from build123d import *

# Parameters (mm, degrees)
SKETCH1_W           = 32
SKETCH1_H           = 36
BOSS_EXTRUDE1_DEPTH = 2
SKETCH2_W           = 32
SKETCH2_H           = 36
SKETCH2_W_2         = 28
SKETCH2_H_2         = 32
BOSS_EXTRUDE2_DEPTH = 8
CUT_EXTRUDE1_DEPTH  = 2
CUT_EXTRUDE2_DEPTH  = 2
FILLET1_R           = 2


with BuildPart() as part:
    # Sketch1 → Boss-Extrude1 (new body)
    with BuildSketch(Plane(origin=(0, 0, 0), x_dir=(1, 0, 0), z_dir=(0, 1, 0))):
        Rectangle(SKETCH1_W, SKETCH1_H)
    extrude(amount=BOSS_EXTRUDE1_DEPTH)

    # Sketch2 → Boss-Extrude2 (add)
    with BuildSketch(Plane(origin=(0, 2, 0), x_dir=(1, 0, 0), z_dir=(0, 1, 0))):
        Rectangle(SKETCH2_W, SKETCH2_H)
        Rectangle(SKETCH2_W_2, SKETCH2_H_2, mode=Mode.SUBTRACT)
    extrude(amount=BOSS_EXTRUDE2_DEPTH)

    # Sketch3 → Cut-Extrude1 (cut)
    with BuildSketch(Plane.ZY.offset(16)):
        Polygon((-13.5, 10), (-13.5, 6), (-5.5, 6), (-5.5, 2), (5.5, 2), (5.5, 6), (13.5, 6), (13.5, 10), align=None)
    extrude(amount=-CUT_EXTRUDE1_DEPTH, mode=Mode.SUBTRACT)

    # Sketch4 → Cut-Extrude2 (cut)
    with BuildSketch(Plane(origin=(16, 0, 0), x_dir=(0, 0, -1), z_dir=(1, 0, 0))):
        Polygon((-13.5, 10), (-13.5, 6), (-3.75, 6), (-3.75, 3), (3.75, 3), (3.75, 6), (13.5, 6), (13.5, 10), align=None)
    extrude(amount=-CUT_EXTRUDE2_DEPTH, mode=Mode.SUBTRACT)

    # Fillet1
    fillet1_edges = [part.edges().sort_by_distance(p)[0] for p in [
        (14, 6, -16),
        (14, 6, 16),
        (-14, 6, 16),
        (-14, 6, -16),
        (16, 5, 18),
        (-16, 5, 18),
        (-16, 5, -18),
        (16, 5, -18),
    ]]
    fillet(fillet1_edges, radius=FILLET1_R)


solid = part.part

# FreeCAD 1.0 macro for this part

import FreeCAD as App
import Part
import Sketcher
from FreeCAD import Vector


def edges_at(feature, points):
    """Names of the edges that pass closest to the given points."""
    edges = feature.Shape.Edges
    near = lambda p: min(range(len(edges)), key=lambda i: edges[i].distToShape(Part.Vertex(*p))[0])
    return sorted({f"Edge{near(p) + 1}" for p in points})


def add_polygon(sketch, points):
    """Adds a closed chain of lines whose ends are joined by coincident constraints."""
    first, n = sketch.GeometryCount, len(points)
    for a, b in zip(points, points[1:] + points[:1]):
        sketch.addGeometry(Part.LineSegment(App.Vector(*a, 0), App.Vector(*b, 0)), False)
    for i in range(n):
        sketch.addConstraint(Sketcher.Constraint("Coincident", first + i, 2, first + (i + 1) % n, 1))

doc = App.newDocument("Part")
params = doc.addObject("Spreadsheet::Sheet", "Params")
for row, (alias, value) in enumerate([
    ("sketch1_width", "32 mm"),
    ("sketch1_height", "36 mm"),
    ("pad1_length", "2 mm"),
    ("sketch2_width", "32 mm"),
    ("sketch2_width2", "28 mm"),
    ("sketch2_height", "36 mm"),
    ("pad2_length", "8 mm"),
    ("sketch3_width", "4 mm"),
    ("sketch3_height", "8 mm"),
    ("sketch3_height2", "11 mm"),
    ("pocket1_length", "2 mm"),
    ("sketch4_width", "4 mm"),
    ("sketch4_width2", "3 mm"),
    ("sketch4_height", "27 mm"),
    ("sketch4_height2", "7.5 mm"),
    ("pocket2_length", "2 mm"),
    ("fillet_radius", "2 mm"),
], start=1):
    params.set(f"A{row}", alias)
    params.set(f"B{row}", "=" + value)
    params.setAlias(f"B{row}", alias)

body = doc.addObject("PartDesign::Body", "Body")

# Sketch on XZ plane
sketch1 = doc.addObject("Sketcher::SketchObject", "Sketch")
body.addObject(sketch1)
sketch1.AttachmentSupport = (doc.XZ_Plane, [""])
sketch1.MapMode = "FlatFace"
add_polygon(sketch1, [(-16, -18), (-16, 18), (16, 18), (16, -18)])  # lines 0-3
sketch1.addConstraint(Sketcher.Constraint("Vertical", 0))
sketch1.addConstraint(Sketcher.Constraint("Horizontal", 1))
sketch1.addConstraint(Sketcher.Constraint("Vertical", 2))
sketch1.addConstraint(Sketcher.Constraint("Horizontal", 3))
sketch1.addConstraint(Sketcher.Constraint("Symmetric", 0, 2, 2, 2, -1, 1))
sketch1.addConstraint(Sketcher.Constraint("DistanceX", 1, 1, 1, 2, 32.0))
sketch1.addConstraint(Sketcher.Constraint("DistanceY", 0, 1, 0, 2, 36.0))
sketch1.setExpression("Constraints[9]", "Params.sketch1_width")
sketch1.setExpression("Constraints[10]", "Params.sketch1_height")
pad1 = doc.addObject("PartDesign::Pad", "Pad")
body.addObject(pad1)
pad1.Profile = sketch1
pad1.setExpression("Length", "Params.pad1_length")
pad1.Reversed = True

# Sketch on XZ plane
sketch2 = doc.addObject("Sketcher::SketchObject", "Sketch001")
body.addObject(sketch2)
sketch2.AttachmentSupport = (doc.XZ_Plane, [""])
sketch2.MapMode = "FlatFace"
sketch2.AttachmentOffset = App.Placement(Vector(0, 0, -2), App.Rotation())
add_polygon(sketch2, [(-16, -18), (-16, 18), (16, 18), (16, -18)])  # lines 0-3
add_polygon(sketch2, [(14, 16), (-14, 16), (-14, -16), (14, -16)])  # lines 4-7
sketch2.addConstraint(Sketcher.Constraint("Vertical", 0))
sketch2.addConstraint(Sketcher.Constraint("Horizontal", 1))
sketch2.addConstraint(Sketcher.Constraint("Vertical", 2))
sketch2.addConstraint(Sketcher.Constraint("Horizontal", 3))
sketch2.addConstraint(Sketcher.Constraint("Horizontal", 4))
sketch2.addConstraint(Sketcher.Constraint("Vertical", 5))
sketch2.addConstraint(Sketcher.Constraint("Horizontal", 6))
sketch2.addConstraint(Sketcher.Constraint("Vertical", 7))
sketch2.addConstraint(Sketcher.Constraint("Symmetric", 0, 2, 2, 2, -1, 1))
sketch2.addConstraint(Sketcher.Constraint("Symmetric", 4, 2, 6, 2, -1, 1))
sketch2.addConstraint(Sketcher.Constraint("Equal", 3, 5))
sketch2.addConstraint(Sketcher.Constraint("DistanceX", 1, 1, 1, 2, 32.0))
sketch2.addConstraint(Sketcher.Constraint("DistanceX", 4, 2, 4, 1, 28.0))
sketch2.addConstraint(Sketcher.Constraint("DistanceY", 0, 1, 0, 2, 36.0))
sketch2.setExpression("Constraints[19]", "Params.sketch2_width")
sketch2.setExpression("Constraints[20]", "Params.sketch2_width2")
sketch2.setExpression("Constraints[21]", "Params.sketch2_height")
pad2 = doc.addObject("PartDesign::Pad", "Pad001")
body.addObject(pad2)
pad2.Profile = sketch2
pad2.setExpression("Length", "Params.pad2_length")
pad2.Reversed = True

# Sketch on YZ plane
sketch3 = doc.addObject("Sketcher::SketchObject", "Sketch002")
body.addObject(sketch3)
sketch3.AttachmentSupport = (doc.YZ_Plane, [""])
sketch3.MapMode = "FlatFace"
sketch3.AttachmentOffset = App.Placement(Vector(0, 0, -16), App.Rotation())
add_polygon(sketch3, [(10, -13.5), (6, -13.5), (6, -5.5), (2, -5.5), (2, 5.5), (6, 5.5), (6, 13.5), (10, 13.5)])  # lines 0-7
sketch3.addConstraint(Sketcher.Constraint("Horizontal", 0))
sketch3.addConstraint(Sketcher.Constraint("Vertical", 1))
sketch3.addConstraint(Sketcher.Constraint("Horizontal", 2))
sketch3.addConstraint(Sketcher.Constraint("Vertical", 3))
sketch3.addConstraint(Sketcher.Constraint("Horizontal", 4))
sketch3.addConstraint(Sketcher.Constraint("Vertical", 5))
sketch3.addConstraint(Sketcher.Constraint("Horizontal", 6))
sketch3.addConstraint(Sketcher.Constraint("Vertical", 7))
sketch3.addConstraint(Sketcher.Constraint("Symmetric", 1, 2, 4, 2, -1))
sketch3.addConstraint(Sketcher.Constraint("Equal", 0, 2))
sketch3.addConstraint(Sketcher.Constraint("Equal", 1, 5))
sketch3.addConstraint(Sketcher.Constraint("DistanceX", 0, 2, 0, 1, 4.0))
sketch3.addConstraint(Sketcher.Constraint("DistanceY", 1, 1, 1, 2, 8.0))
sketch3.addConstraint(Sketcher.Constraint("DistanceY", 3, 1, 3, 2, 11.0))
sketch3.addConstraint(Sketcher.Constraint("DistanceX", -1, 1, 0, 2, 6.0))
sketch3.setExpression("Constraints[19]", "Params.sketch3_width")
sketch3.setExpression("Constraints[20]", "Params.sketch3_height")
sketch3.setExpression("Constraints[21]", "Params.sketch3_height2")
pocket1 = doc.addObject("PartDesign::Pocket", "Pocket")
body.addObject(pocket1)
pocket1.Profile = sketch3
pocket1.setExpression("Length", "Params.pocket1_length")
pocket1.Reversed = True

# Sketch on YZ plane
sketch4 = doc.addObject("Sketcher::SketchObject", "Sketch003")
body.addObject(sketch4)
sketch4.AttachmentSupport = (doc.YZ_Plane, [""])
sketch4.MapMode = "FlatFace"
sketch4.AttachmentOffset = App.Placement(Vector(0, 0, 16), App.Rotation())
add_polygon(sketch4, [(10, 13.5), (6, 13.5), (6, 3.8), (3, 3.8), (3, -3.8), (6, -3.8), (6, -13.5), (10, -13.5)])  # lines 0-7
sketch4.addConstraint(Sketcher.Constraint("Horizontal", 0))
sketch4.addConstraint(Sketcher.Constraint("Vertical", 1))
sketch4.addConstraint(Sketcher.Constraint("Horizontal", 2))
sketch4.addConstraint(Sketcher.Constraint("Vertical", 3))
sketch4.addConstraint(Sketcher.Constraint("Horizontal", 4))
sketch4.addConstraint(Sketcher.Constraint("Vertical", 5))
sketch4.addConstraint(Sketcher.Constraint("Horizontal", 6))
sketch4.addConstraint(Sketcher.Constraint("Vertical", 7))
sketch4.addConstraint(Sketcher.Constraint("Symmetric", 1, 2, 4, 2, -1))
sketch4.addConstraint(Sketcher.Constraint("Equal", 1, 5))
sketch4.addConstraint(Sketcher.Constraint("DistanceX", 0, 2, 0, 1, 4.0))
sketch4.addConstraint(Sketcher.Constraint("DistanceX", 2, 2, 2, 1, 3.0))
sketch4.addConstraint(Sketcher.Constraint("DistanceY", 7, 1, 7, 2, 27.0))
sketch4.addConstraint(Sketcher.Constraint("DistanceY", 3, 2, 3, 1, 7.5))
sketch4.addConstraint(Sketcher.Constraint("DistanceX", -1, 1, 0, 2, 6.0))
sketch4.setExpression("Constraints[18]", "Params.sketch4_width")
sketch4.setExpression("Constraints[19]", "Params.sketch4_width2")
sketch4.setExpression("Constraints[20]", "Params.sketch4_height")
sketch4.setExpression("Constraints[21]", "Params.sketch4_height2")
pocket2 = doc.addObject("PartDesign::Pocket", "Pocket001")
body.addObject(pocket2)
pocket2.Profile = sketch4
pocket2.setExpression("Length", "Params.pocket2_length")
doc.recompute()

fillet = doc.addObject("PartDesign::Fillet", "Fillet")
body.addObject(fillet)
fillet.Base = (pocket2, edges_at(pocket2, [
    (14, 6, -16),
    (14, 6, 16),
    (-14, 6, 16),
    (-14, 6, -16),
    (16, 5, 18),
    (-16, 5, 18),
    (-16, 5, -18),
    (16, 5, -18),
]))
fillet.setExpression("Radius", "Params.fillet_radius")

doc.recompute()
